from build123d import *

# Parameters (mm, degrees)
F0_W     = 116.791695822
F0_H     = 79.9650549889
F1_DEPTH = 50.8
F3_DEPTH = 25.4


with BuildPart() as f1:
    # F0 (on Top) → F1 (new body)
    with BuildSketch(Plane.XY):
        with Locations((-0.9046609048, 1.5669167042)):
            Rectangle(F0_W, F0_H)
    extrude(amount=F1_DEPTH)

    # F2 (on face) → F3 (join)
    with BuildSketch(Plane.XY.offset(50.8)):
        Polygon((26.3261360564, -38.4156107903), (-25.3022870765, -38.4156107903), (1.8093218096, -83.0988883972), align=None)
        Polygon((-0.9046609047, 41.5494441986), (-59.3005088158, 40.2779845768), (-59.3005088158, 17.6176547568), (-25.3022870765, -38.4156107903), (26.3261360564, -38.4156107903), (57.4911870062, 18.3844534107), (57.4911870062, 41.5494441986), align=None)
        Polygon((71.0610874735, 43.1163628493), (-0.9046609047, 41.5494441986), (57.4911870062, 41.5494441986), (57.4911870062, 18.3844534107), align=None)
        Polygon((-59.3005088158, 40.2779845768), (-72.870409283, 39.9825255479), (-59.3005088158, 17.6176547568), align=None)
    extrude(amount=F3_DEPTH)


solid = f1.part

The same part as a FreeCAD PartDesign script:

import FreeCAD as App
import Part
import Sketcher

V = App.Vector
Q = App.Units.Quantity


def add_polygon(sketch, points):
    """Adds a closed chain of lines whose ends are joined by coincident constraints."""
    first, n = sketch.GeometryCount, len(points)
    for a, b in zip(points, points[1:] + points[:1]):
        sketch.addGeometry(Part.LineSegment(App.Vector(*a, 0), App.Vector(*b, 0)), False)
    for i in range(n):
        sketch.addConstraint(Sketcher.Constraint("Coincident", first + i, 2, first + (i + 1) % n, 1))

doc = App.newDocument("Part")
body = doc.addObject("PartDesign::Body", "Body")

# Sketch on XY plane
sketch1 = body.newObject("Sketcher::SketchObject", "Sketch")
sketch1.AttachmentSupport = (doc.getObject("XY_Plane"), [""])
sketch1.MapMode = "FlatFace"
add_polygon(sketch1, [(-59, 42), (-59, -38), (57, -38), (57, 42)])  # lines 0-3
sketch1.addConstraint([
    Sketcher.Constraint("Vertical", 0),
    Sketcher.Constraint("Horizontal", 1),
    Sketcher.Constraint("Vertical", 2),
    Sketcher.Constraint("Horizontal", 3),
    Sketcher.Constraint("DistanceX", 1, 1, 1, 2, Q("116.791696 mm")),
    Sketcher.Constraint("DistanceY", 0, 2, 0, 1, Q("79.965055 mm")),
    Sketcher.Constraint("DistanceX", 0, 2, -1, 1, Q("59.300509 mm")),
    Sketcher.Constraint("DistanceY", 0, 2, -1, 1, Q("38.415611 mm")),
])
pad1 = body.newObject("PartDesign::Pad", "Pad")
pad1.Profile = sketch1
pad1.Length = Q("2 in")

# Sketch on XY plane
sketch2 = body.newObject("Sketcher::SketchObject", "Sketch001")
sketch2.AttachmentSupport = (doc.getObject("XY_Plane"), [""])
sketch2.MapMode = "FlatFace"
sketch2.AttachmentOffset = App.Placement(V(0, 0, 2 * 25.4), App.Rotation())
add_polygon(sketch2, [(-25.302287, -38.415611), (1.809322, -83.098888), (57.491187, 18.384453), (71.061087, 43.116363), (-72.870409, 39.982526)])  # lines 0-4
sketch2.addConstraint([
    Sketcher.Constraint("Parallel", 1, 2),
    Sketcher.Constraint("Parallel", 0, 4),
    Sketcher.Constraint("DistanceX", 1, 2, 2, 2, Q("13.5699 mm")),
    Sketcher.Constraint("Distance", 3, Q("143.965609 mm")),
    Sketcher.Constraint("DistanceX", -1, 1, 0, 2, Q("1.809322 mm")),
    Sketcher.Constraint("DistanceY", 0, 2, -1, 1, Q("83.098888 mm")),
    Sketcher.Constraint("DistanceX", 3, 2, -1, 1, Q("72.870409 mm")),
    Sketcher.Constraint("DistanceY", 4, 2, -1, 1, Q("38.415611 mm")),
    Sketcher.Constraint("DistanceY", 0, 2, 1, 2, Q("101.483342 mm")),
    Sketcher.Constraint("DistanceY", 1, 2, 2, 2, Q("24.731909 mm")),
])
pad2 = body.newObject("PartDesign::Pad", "Pad001")
pad2.Profile = sketch2
pad2.Length = Q("1 in")

doc.recompute()
